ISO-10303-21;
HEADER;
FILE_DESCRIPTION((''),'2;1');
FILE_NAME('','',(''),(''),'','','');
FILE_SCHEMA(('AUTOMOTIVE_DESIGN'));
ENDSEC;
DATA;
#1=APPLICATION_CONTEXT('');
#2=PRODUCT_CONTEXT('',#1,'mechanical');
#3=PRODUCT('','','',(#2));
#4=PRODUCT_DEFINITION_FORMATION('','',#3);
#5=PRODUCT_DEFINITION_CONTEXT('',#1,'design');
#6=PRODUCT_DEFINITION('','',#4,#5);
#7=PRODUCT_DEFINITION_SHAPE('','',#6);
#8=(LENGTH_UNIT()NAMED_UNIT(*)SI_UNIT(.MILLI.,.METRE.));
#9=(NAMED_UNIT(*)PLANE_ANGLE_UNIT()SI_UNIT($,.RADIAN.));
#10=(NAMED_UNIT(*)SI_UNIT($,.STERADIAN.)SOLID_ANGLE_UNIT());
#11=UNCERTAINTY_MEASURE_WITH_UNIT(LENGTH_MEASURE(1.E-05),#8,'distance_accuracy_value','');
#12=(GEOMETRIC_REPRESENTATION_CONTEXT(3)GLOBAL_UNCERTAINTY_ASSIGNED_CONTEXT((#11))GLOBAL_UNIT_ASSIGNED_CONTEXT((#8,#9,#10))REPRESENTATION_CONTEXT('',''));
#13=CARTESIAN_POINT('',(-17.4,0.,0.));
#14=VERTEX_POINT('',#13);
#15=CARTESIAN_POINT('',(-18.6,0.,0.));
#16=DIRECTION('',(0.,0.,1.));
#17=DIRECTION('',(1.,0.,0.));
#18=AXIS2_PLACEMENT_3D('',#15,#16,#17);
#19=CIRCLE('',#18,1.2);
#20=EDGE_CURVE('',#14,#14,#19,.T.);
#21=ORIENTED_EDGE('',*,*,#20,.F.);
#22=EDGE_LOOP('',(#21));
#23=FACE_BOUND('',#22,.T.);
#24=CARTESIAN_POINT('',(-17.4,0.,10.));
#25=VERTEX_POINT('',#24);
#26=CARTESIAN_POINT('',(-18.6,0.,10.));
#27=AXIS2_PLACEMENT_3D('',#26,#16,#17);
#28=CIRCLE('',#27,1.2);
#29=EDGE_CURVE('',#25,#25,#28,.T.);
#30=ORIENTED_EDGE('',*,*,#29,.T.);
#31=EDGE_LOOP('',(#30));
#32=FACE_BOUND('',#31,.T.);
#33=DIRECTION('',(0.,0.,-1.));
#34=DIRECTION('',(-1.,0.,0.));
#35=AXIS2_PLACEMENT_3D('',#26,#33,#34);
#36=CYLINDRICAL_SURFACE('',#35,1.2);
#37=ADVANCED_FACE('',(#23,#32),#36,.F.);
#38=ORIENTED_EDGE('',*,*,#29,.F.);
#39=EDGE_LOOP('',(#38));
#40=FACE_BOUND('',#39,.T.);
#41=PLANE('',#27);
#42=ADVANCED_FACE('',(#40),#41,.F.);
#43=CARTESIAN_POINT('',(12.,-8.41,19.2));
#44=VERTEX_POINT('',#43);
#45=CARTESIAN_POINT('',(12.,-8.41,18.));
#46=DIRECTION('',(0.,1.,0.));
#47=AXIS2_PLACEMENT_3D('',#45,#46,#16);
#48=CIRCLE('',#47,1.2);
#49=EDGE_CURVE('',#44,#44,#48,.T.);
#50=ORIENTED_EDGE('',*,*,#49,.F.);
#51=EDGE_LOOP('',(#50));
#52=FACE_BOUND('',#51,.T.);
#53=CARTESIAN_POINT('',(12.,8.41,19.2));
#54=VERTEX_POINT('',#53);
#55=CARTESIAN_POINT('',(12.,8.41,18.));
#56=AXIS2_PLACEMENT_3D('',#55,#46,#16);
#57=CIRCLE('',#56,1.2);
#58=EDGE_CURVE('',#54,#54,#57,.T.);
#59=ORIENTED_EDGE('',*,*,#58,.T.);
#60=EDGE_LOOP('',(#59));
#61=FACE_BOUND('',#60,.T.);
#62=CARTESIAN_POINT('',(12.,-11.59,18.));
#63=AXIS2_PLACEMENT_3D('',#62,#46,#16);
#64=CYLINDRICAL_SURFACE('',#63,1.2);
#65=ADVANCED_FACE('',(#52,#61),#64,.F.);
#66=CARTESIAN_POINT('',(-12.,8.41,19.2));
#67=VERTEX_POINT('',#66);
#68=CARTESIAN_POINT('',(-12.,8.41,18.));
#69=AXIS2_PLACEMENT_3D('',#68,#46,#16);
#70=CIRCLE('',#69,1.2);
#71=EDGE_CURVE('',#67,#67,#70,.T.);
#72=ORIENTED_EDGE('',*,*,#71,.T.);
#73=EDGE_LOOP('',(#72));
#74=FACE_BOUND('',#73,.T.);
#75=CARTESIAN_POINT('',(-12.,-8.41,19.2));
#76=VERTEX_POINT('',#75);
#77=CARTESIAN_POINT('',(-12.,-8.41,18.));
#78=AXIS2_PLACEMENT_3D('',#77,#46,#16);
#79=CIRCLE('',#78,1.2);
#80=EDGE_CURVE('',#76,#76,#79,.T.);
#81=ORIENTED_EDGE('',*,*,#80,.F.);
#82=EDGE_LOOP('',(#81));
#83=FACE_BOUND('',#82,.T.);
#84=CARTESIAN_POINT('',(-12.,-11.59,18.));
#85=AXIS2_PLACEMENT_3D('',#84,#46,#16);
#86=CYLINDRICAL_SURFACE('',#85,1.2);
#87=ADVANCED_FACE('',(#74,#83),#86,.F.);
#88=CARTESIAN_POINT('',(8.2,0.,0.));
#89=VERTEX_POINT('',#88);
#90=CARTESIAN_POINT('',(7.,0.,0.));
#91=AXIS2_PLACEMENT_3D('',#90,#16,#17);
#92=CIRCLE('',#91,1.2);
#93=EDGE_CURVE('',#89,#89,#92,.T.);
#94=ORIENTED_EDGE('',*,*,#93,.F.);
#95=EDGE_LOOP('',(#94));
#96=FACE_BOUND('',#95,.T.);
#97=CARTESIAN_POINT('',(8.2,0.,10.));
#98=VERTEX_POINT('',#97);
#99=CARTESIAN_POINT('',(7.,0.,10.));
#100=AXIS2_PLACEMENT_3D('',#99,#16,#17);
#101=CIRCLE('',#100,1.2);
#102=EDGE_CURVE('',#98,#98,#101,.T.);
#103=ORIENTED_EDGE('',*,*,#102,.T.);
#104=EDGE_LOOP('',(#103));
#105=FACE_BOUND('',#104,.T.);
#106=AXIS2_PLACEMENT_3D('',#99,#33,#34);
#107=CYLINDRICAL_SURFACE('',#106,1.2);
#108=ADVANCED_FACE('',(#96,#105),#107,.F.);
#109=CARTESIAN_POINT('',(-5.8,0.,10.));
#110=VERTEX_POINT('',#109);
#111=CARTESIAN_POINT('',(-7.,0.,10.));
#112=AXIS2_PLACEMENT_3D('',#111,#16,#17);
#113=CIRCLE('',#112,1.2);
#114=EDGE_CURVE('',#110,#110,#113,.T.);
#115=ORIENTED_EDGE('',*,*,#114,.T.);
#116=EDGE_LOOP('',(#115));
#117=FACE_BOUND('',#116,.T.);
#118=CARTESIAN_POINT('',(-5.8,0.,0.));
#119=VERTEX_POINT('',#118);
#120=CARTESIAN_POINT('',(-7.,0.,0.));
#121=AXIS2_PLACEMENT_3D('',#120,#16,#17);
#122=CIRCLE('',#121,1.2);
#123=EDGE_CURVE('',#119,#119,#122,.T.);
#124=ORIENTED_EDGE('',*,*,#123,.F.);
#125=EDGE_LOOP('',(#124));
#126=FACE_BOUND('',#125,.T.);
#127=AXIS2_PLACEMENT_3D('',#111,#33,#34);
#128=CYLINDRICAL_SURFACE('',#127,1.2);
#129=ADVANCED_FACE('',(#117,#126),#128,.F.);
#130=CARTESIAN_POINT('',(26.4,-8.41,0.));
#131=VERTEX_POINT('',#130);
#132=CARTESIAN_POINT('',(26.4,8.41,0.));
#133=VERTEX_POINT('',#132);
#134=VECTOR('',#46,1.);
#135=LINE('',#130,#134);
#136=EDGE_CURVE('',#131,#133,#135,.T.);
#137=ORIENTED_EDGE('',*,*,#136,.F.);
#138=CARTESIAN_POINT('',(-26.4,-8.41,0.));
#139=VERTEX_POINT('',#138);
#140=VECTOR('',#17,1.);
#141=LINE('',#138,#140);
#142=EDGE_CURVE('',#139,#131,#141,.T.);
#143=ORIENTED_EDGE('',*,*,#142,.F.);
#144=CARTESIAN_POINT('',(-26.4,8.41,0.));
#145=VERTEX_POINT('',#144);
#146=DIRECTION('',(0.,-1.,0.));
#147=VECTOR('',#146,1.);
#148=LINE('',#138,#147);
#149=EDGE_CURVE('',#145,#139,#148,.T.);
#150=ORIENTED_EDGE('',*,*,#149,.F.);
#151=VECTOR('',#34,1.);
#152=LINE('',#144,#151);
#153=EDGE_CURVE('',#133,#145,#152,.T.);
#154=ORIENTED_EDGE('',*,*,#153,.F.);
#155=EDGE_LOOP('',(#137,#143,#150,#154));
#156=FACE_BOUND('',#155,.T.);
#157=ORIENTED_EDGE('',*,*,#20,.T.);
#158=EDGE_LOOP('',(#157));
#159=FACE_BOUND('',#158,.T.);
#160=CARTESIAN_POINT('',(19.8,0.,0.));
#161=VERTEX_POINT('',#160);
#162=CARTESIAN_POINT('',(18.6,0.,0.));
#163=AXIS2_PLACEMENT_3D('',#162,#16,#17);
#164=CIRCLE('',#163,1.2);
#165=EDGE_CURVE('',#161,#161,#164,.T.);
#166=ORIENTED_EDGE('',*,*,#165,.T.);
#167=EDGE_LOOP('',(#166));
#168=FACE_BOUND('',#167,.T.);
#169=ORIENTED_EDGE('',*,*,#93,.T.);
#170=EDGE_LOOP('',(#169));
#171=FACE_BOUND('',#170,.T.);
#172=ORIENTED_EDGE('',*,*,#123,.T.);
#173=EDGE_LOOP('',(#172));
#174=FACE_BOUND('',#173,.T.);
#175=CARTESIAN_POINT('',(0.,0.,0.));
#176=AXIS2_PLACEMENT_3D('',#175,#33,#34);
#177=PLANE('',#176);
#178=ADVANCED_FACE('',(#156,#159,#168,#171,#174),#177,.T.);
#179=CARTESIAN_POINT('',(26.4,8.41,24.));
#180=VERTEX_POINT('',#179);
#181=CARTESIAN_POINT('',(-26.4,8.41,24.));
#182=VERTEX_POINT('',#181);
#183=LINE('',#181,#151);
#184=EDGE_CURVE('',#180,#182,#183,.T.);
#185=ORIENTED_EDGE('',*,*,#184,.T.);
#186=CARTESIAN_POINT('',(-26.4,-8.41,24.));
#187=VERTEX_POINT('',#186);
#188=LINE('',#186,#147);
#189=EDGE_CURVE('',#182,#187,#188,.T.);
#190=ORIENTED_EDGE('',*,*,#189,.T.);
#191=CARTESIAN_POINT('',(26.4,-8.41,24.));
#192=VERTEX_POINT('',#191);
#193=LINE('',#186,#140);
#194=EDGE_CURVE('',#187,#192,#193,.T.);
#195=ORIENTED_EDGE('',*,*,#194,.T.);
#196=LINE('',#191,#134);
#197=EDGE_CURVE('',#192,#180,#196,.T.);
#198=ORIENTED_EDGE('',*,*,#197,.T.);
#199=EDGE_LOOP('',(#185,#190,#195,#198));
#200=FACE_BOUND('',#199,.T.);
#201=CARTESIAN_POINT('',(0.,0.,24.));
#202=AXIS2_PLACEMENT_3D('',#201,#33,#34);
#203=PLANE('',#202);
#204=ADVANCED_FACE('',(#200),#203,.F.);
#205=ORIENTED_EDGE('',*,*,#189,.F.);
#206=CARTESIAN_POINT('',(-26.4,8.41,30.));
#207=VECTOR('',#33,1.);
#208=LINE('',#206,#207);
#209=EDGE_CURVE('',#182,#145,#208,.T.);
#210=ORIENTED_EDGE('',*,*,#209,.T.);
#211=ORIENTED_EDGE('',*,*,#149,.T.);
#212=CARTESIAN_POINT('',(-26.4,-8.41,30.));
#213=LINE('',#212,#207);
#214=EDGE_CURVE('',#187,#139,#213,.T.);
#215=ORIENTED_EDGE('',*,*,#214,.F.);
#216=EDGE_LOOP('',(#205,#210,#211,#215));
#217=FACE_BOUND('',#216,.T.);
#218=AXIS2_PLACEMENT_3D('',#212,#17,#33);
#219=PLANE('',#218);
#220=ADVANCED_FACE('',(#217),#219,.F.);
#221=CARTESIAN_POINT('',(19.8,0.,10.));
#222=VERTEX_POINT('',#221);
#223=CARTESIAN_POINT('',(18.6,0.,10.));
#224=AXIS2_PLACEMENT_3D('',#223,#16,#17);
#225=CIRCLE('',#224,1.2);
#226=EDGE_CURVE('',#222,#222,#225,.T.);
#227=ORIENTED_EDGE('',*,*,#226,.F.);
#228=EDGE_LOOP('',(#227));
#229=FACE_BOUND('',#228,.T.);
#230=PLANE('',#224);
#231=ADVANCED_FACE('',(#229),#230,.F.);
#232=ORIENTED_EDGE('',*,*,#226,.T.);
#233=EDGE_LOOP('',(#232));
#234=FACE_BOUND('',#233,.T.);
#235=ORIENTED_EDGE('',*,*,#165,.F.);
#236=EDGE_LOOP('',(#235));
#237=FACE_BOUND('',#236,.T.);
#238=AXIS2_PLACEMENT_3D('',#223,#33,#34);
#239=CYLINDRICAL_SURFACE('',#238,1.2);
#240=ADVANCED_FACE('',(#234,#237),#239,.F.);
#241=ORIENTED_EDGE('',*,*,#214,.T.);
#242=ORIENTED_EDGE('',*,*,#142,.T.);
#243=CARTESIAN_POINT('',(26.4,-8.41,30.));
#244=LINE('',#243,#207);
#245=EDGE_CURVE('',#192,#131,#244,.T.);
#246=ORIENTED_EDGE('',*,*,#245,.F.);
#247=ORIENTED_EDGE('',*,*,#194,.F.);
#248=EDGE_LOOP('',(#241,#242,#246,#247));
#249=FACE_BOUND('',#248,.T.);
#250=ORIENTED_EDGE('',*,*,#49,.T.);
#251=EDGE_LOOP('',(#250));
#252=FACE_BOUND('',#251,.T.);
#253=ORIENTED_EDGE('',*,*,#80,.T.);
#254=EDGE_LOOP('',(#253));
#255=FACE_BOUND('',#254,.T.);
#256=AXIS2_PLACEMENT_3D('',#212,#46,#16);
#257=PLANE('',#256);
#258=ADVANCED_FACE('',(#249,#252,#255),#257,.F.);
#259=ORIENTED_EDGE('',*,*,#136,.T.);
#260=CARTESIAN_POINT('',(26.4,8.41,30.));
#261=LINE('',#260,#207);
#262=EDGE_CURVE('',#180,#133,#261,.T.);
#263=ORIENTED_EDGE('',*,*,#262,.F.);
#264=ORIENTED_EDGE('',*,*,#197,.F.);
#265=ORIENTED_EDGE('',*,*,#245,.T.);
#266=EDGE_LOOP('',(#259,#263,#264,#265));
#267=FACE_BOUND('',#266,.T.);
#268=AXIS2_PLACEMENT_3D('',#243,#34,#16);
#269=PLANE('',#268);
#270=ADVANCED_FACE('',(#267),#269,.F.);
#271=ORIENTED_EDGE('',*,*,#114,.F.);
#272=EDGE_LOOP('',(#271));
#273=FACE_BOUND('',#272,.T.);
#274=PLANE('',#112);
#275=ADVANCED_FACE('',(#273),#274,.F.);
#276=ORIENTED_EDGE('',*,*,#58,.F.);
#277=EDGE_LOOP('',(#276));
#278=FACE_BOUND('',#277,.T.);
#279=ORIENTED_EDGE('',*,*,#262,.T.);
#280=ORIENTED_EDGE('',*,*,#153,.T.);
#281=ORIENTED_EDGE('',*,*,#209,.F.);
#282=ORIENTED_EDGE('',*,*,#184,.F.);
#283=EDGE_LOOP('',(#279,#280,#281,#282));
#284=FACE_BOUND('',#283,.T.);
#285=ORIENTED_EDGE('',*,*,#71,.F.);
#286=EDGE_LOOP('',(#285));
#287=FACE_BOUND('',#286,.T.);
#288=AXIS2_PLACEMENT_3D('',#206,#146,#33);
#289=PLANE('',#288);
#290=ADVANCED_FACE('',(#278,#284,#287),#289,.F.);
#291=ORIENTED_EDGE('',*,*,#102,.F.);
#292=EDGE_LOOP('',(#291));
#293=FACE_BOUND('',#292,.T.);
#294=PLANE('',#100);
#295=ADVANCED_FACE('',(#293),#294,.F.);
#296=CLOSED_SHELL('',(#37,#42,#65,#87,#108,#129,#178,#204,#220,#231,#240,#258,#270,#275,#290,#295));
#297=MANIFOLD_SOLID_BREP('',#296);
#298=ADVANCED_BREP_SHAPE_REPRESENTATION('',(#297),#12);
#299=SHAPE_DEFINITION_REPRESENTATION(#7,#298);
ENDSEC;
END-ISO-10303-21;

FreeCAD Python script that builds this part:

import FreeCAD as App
import Part
import Sketcher


def add_polygon(sketch, points):
    """Adds a closed chain of lines whose ends are joined by coincident constraints."""
    first, n = sketch.GeometryCount, len(points)
    for a, b in zip(points, points[1:] + points[:1]):
        sketch.addGeometry(Part.LineSegment(App.Vector(*a, 0), App.Vector(*b, 0)), False)
    for i in range(n):
        sketch.addConstraint(Sketcher.Constraint("Coincident", first + i, 2, first + (i + 1) % n, 1))

doc = App.newDocument("Part")
body = doc.addObject("PartDesign::Body", "Body")

# Sketch on XY plane
sketch1 = doc.addObject("Sketcher::SketchObject", "Sketch")
body.addObject(sketch1)
sketch1.AttachmentSupport = (doc.XY_Plane, [""])
sketch1.MapMode = "FlatFace"
add_polygon(sketch1, [(-26.4, 8.41), (-26.4, -8.41), (26.4, -8.41), (26.4, 8.41)])  # lines 0-3
sketch1.addConstraint([
    Sketcher.Constraint("Vertical", 0),
    Sketcher.Constraint("Horizontal", 1),
    Sketcher.Constraint("Vertical", 2),
    Sketcher.Constraint("Horizontal", 3),
    Sketcher.Constraint("Symmetric", 0, 2, 2, 2, -1, 1),
    Sketcher.Constraint("DistanceX", 1, 1, 1, 2, 52.8),
    Sketcher.Constraint("DistanceY", 0, 2, 0, 1, 16.82),
])
pad1 = doc.addObject("PartDesign::Pad", "Pad")
body.addObject(pad1)
pad1.Profile = sketch1
pad1.Length = 30

# Sketch on XZ plane
sketch2 = doc.addObject("Sketcher::SketchObject", "Sketch001")
body.addObject(sketch2)
sketch2.AttachmentSupport = (doc.XZ_Plane, [""])
sketch2.MapMode = "FlatFace"
sketch2.AttachmentOffset = App.Placement(App.Vector(0, 0, -8.41), App.Rotation())
sketch2.addGeometry([
    Part.Circle(App.Vector(-12, 18, 0), App.Vector(0, 0, 1), 1.2),
    Part.Circle(App.Vector(12, 18, 0), App.Vector(0, 0, 1), 1.2),
], False)
sketch2.addConstraint([
    Sketcher.Constraint("Equal", 0, 1),
    Sketcher.Constraint("Symmetric", 0, 3, 1, 3, -2),
    Sketcher.Constraint("Diameter", 0, 2.4),
    Sketcher.Constraint("DistanceX", 0, 3, -1, 1, 12.0),
    Sketcher.Constraint("DistanceY", -1, 1, 0, 3, 18.0),
])
pocket1 = doc.addObject("PartDesign::Pocket", "Pocket")
body.addObject(pocket1)
pocket1.Profile = sketch2
pocket1.Length = 20
pocket1.Reversed = True

# Sketch on XY plane
sketch3 = doc.addObject("Sketcher::SketchObject", "Sketch002")
body.addObject(sketch3)
sketch3.AttachmentSupport = (doc.XY_Plane, [""])
sketch3.MapMode = "FlatFace"
sketch3.addGeometry([
    Part.Circle(App.Vector(18.6, 0, 0), App.Vector(0, 0, 1), 1.2),
    Part.Circle(App.Vector(7, 0, 0), App.Vector(0, 0, 1), 1.2),
    Part.Circle(App.Vector(-7, 0, 0), App.Vector(0, 0, 1), 1.2),
    Part.Circle(App.Vector(-18.6, 0, 0), App.Vector(0, 0, 1), 1.2),
], False)
sketch3.addConstraint([
    Sketcher.Constraint("Equal", 0, 1),
    Sketcher.Constraint("Equal", 1, 2),
    Sketcher.Constraint("Equal", 2, 3),
    Sketcher.Constraint("Symmetric", 1, 3, 2, 3, -1, 1),
    Sketcher.Constraint("Symmetric", 0, 3, 3, 3, -1, 1),
    Sketcher.Constraint("PointOnObject", 0, 3, -1),
    Sketcher.Constraint("PointOnObject", 1, 3, -1),
    Sketcher.Constraint("Diameter", 0, 2.4),
    Sketcher.Constraint("DistanceX", -1, 1, 1, 3, 7.0),
    Sketcher.Constraint("DistanceX", -1, 1, 0, 3, 18.6),
])
pocket2 = doc.addObject("PartDesign::Pocket", "Pocket001")
body.addObject(pocket2)
pocket2.Profile = sketch3
pocket2.Length = 10
pocket2.Reversed = True

# Sketch on XY plane
sketch4 = doc.addObject("Sketcher::SketchObject", "Sketch003")
body.addObject(sketch4)
sketch4.AttachmentSupport = (doc.XY_Plane, [""])
sketch4.MapMode = "FlatFace"
sketch4.AttachmentOffset = App.Placement(App.Vector(0, 0, 30), App.Rotation())
add_polygon(sketch4, [(-26.4, 8.41), (-26.4, -8.41), (26.4, -8.41), (26.4, 8.41)])  # lines 0-3
sketch4.addConstraint([
    Sketcher.Constraint("Vertical", 0),
    Sketcher.Constraint("Horizontal", 1),
    Sketcher.Constraint("Vertical", 2),
    Sketcher.Constraint("Horizontal", 3),
    Sketcher.Constraint("Symmetric", 0, 2, 2, 2, -1, 1),
    Sketcher.Constraint("DistanceX", 1, 1, 1, 2, 52.8),
    Sketcher.Constraint("DistanceY", 0, 2, 0, 1, 16.82),
])
pocket3 = doc.addObject("PartDesign::Pocket", "Pocket002")
body.addObject(pocket3)
pocket3.Profile = sketch4
pocket3.Length = 6

doc.recompute()
